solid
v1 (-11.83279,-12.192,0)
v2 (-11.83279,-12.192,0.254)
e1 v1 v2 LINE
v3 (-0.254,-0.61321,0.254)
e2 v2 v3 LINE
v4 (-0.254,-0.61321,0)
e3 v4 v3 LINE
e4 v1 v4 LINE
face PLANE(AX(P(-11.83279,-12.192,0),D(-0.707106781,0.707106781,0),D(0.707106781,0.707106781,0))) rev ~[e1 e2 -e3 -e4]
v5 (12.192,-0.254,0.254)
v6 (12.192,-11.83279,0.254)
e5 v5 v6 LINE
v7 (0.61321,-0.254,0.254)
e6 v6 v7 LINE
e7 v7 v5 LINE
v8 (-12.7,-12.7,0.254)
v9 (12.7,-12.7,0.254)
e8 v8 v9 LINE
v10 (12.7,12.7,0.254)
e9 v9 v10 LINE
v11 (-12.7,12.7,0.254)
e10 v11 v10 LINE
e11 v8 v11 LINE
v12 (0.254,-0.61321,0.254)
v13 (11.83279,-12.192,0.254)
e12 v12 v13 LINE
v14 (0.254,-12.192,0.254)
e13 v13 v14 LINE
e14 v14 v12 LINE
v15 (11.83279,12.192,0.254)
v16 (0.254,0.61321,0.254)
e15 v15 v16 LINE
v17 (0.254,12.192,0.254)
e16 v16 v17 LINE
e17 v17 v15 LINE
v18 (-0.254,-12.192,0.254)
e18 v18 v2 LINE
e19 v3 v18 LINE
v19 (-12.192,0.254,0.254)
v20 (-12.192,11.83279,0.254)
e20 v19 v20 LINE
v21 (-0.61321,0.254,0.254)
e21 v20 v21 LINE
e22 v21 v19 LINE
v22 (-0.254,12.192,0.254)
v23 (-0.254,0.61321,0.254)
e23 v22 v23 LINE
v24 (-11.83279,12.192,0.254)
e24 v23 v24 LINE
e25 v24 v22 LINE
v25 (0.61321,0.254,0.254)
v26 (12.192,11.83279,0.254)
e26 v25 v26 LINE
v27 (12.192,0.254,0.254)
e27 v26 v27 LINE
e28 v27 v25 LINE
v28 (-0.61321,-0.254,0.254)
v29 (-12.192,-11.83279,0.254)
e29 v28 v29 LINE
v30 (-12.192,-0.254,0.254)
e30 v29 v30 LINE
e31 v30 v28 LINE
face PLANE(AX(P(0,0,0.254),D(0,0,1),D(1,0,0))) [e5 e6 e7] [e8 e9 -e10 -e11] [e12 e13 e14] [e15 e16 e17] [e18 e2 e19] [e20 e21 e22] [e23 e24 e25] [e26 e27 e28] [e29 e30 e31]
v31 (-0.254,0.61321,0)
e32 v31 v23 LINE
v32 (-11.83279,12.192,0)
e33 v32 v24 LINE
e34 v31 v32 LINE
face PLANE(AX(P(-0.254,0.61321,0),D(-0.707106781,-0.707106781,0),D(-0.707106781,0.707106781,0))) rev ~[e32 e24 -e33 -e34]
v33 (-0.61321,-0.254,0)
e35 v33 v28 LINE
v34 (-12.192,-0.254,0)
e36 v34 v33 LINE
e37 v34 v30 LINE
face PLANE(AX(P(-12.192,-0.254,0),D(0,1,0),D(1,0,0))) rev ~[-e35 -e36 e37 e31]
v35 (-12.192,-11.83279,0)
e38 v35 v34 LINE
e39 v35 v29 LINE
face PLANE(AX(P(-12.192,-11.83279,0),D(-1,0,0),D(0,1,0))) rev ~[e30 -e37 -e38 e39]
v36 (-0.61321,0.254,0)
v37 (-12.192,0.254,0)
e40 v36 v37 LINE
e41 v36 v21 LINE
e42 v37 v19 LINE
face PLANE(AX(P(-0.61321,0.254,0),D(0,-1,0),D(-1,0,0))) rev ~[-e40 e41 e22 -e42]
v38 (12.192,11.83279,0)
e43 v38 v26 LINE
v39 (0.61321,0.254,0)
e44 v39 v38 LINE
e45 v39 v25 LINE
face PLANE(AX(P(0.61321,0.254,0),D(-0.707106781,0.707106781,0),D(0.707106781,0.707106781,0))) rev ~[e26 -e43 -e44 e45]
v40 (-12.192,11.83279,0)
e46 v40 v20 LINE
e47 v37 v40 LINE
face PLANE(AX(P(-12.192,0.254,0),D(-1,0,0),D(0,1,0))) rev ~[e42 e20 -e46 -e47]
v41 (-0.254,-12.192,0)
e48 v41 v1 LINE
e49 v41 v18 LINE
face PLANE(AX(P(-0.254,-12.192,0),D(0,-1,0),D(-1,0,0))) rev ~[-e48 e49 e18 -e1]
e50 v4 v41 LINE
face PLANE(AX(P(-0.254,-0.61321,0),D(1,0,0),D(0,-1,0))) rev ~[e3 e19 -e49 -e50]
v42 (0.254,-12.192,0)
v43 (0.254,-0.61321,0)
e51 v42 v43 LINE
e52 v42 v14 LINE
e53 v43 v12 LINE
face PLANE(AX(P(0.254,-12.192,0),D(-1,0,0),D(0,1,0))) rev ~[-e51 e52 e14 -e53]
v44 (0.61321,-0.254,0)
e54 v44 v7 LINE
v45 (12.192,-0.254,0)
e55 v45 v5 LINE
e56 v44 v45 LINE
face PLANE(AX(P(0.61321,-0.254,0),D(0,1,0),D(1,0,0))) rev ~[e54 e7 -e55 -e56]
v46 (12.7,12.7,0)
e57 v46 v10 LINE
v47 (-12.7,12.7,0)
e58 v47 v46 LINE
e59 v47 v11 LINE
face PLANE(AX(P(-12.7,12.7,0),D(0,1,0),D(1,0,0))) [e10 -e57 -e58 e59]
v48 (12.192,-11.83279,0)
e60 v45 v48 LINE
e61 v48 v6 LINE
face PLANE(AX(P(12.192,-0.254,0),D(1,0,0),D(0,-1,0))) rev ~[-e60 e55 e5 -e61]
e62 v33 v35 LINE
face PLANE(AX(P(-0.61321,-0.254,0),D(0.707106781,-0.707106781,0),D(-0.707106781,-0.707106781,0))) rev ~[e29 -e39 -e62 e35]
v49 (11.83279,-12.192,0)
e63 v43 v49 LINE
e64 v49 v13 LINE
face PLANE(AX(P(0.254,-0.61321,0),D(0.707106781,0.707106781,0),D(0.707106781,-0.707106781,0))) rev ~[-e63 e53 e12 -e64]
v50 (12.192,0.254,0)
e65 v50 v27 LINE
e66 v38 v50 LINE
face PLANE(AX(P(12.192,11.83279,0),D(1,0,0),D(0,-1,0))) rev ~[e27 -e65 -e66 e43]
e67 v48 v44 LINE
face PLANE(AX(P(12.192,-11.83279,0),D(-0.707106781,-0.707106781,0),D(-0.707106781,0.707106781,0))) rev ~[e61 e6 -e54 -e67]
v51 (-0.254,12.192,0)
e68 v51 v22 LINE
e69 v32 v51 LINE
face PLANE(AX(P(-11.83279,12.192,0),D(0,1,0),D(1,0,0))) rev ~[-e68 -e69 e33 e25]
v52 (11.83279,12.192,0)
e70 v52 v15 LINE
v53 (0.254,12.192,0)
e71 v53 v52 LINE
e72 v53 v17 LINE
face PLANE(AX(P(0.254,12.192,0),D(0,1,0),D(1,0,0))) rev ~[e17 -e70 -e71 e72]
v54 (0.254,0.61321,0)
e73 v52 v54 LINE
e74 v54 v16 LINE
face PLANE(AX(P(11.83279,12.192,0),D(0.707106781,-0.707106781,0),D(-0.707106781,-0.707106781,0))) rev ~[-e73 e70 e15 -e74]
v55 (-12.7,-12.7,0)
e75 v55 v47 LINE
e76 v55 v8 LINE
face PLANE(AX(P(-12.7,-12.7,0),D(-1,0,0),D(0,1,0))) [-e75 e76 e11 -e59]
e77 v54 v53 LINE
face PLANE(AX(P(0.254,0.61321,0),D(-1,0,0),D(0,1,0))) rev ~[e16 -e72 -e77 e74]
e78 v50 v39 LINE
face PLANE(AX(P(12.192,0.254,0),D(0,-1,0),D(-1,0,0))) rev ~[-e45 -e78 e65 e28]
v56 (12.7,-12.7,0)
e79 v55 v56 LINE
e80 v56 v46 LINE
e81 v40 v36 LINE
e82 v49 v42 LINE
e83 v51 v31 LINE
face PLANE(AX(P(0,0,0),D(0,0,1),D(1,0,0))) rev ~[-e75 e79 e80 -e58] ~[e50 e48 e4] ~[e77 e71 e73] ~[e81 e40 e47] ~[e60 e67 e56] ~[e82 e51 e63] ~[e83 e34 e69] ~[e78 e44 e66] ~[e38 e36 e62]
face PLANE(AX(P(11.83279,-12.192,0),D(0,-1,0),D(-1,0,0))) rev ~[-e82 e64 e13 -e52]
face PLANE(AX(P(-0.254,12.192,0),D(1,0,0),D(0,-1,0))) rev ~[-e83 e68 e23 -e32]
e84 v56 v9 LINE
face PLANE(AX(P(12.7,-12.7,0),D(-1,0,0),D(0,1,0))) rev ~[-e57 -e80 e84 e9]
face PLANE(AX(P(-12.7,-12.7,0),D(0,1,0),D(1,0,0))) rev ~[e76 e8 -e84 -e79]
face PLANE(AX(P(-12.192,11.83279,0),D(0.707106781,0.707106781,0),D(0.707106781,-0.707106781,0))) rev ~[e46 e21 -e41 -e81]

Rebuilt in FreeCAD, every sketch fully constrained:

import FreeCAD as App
import Part
import Sketcher
from FreeCAD import Vector
Q = App.Units.Quantity


def add_polygon(sketch, points):
    """Adds a closed chain of lines whose ends are joined by coincident constraints."""
    first, n = sketch.GeometryCount, len(points)
    for a, b in zip(points, points[1:] + points[:1]):
        sketch.addGeometry(Part.LineSegment(App.Vector(*a, 0), App.Vector(*b, 0)), False)
    for i in range(n):
        sketch.addConstraint(Sketcher.Constraint("Coincident", first + i, 2, first + (i + 1) % n, 1))

doc = App.newDocument("Part")
body = doc.addObject("PartDesign::Body", "Body")

# Sketch on XY plane
sketch1 = body.newObject("Sketcher::SketchObject", "Sketch")
sketch1.AttachmentSupport = (doc.getObject("XY_Plane"), [""])
sketch1.MapMode = "FlatFace"
add_polygon(sketch1, [(-12.7, 12.7), (-12.7, -12.7), (12.7, -12.7), (12.7, 12.7)])  # lines 0-3
add_polygon(sketch1, [(-0.254, -0.61321), (-0.254, -12.192), (-11.83279, -12.192)])  # lines 4-6
add_polygon(sketch1, [(-12.192, -0.254), (-0.61321, -0.254), (-12.192, -11.83279)])  # lines 7-9
add_polygon(sketch1, [(0.254, -0.61321), (11.83279, -12.192), (0.254, -12.192)])  # lines 10-12
add_polygon(sketch1, [(0.61321, -0.254), (12.192, -0.254), (12.192, -11.83279)])  # lines 13-15
add_polygon(sketch1, [(-0.61321, 0.254), (-12.192, 0.254), (-12.192, 11.83279)])  # lines 16-18
add_polygon(sketch1, [(-0.254, 12.192), (-0.254, 0.61321), (-11.83279, 12.192)])  # lines 19-21
add_polygon(sketch1, [(12.192, 0.254), (0.61321, 0.254), (12.192, 11.83279)])  # lines 22-24
add_polygon(sketch1, [(11.83279, 12.192), (0.254, 0.61321), (0.254, 12.192)])  # lines 25-27
sketch1.addConstraint([
    Sketcher.Constraint("Vertical", 0),
    Sketcher.Constraint("Horizontal", 1),
    Sketcher.Constraint("Vertical", 2),
    Sketcher.Constraint("Horizontal", 3),
    Sketcher.Constraint("Vertical", 4),
    Sketcher.Constraint("Horizontal", 5),
    Sketcher.Constraint("Horizontal", 7),
    Sketcher.Constraint("Vertical", 9),
    Sketcher.Constraint("Horizontal", 11),
    Sketcher.Constraint("Vertical", 12),
    Sketcher.Constraint("Horizontal", 13),
    Sketcher.Constraint("Vertical", 14),
    Sketcher.Constraint("Horizontal", 16),
    Sketcher.Constraint("Vertical", 17),
    Sketcher.Constraint("Vertical", 19),
    Sketcher.Constraint("Horizontal", 21),
    Sketcher.Constraint("Horizontal", 22),
    Sketcher.Constraint("Vertical", 24),
    Sketcher.Constraint("Vertical", 26),
    Sketcher.Constraint("Horizontal", 27),
    Sketcher.Constraint("Symmetric", 0, 2, 2, 2, -1, 1),
    Sketcher.Constraint("Symmetric", 13, 2, 16, 2, -1, 1),
    Sketcher.Constraint("Symmetric", 12, 2, 19, 2, -1, 1),
    Sketcher.Constraint("Symmetric", 10, 2, 20, 2, -1, 1),
    Sketcher.Constraint("Symmetric", 7, 2, 22, 2, -1, 1),
    Sketcher.Constraint("Symmetric", 8, 2, 23, 2, -1, 1),
    Sketcher.Constraint("Symmetric", 6, 2, 25, 2, -1, 1),
    Sketcher.Constraint("Symmetric", 5, 2, 27, 2, -1, 1),
    Sketcher.Constraint("Symmetric", 5, 2, 10, 2, -2),
    Sketcher.Constraint("Symmetric", 6, 2, 12, 2, -2),
    Sketcher.Constraint("Symmetric", 9, 2, 13, 2, -2),
    Sketcher.Constraint("Parallel", 6, 8),
    Sketcher.Constraint("Perpendicular", 8, 10),
    Sketcher.Constraint("Parallel", 10, 15),
    Sketcher.Constraint("Parallel", 15, 18),
    Sketcher.Constraint("Horizontal", 8, 2, 14, 2),
    Sketcher.Constraint("Horizontal", 17, 2, 23, 2),
    Sketcher.Constraint("Equal", 5, 7),
    Sketcher.Constraint("Equal", 3, 0),
    Sketcher.Constraint("DistanceX", 1, 1, 1, 2, Q("1 in")),
    Sketcher.Constraint("DistanceX", 4, 2, -1, 1, Q("0.01 in")),
    Sketcher.Constraint("DistanceY", 4, 2, -1, 1, Q("0.48 in")),
    Sketcher.Constraint("DistanceY", 7, 2, -1, 1, Q("0.01 in")),
    Sketcher.Constraint("DistanceX", 8, 2, -1, 1, Q("0.48 in")),
    Sketcher.Constraint("DistanceX", 5, 2, 5, 1, Q("11.57879 mm")),
])
pad1 = body.newObject("PartDesign::Pad", "Pad")
pad1.Profile = sketch1
pad1.Length = Q("0.01 in")

doc.recompute()
